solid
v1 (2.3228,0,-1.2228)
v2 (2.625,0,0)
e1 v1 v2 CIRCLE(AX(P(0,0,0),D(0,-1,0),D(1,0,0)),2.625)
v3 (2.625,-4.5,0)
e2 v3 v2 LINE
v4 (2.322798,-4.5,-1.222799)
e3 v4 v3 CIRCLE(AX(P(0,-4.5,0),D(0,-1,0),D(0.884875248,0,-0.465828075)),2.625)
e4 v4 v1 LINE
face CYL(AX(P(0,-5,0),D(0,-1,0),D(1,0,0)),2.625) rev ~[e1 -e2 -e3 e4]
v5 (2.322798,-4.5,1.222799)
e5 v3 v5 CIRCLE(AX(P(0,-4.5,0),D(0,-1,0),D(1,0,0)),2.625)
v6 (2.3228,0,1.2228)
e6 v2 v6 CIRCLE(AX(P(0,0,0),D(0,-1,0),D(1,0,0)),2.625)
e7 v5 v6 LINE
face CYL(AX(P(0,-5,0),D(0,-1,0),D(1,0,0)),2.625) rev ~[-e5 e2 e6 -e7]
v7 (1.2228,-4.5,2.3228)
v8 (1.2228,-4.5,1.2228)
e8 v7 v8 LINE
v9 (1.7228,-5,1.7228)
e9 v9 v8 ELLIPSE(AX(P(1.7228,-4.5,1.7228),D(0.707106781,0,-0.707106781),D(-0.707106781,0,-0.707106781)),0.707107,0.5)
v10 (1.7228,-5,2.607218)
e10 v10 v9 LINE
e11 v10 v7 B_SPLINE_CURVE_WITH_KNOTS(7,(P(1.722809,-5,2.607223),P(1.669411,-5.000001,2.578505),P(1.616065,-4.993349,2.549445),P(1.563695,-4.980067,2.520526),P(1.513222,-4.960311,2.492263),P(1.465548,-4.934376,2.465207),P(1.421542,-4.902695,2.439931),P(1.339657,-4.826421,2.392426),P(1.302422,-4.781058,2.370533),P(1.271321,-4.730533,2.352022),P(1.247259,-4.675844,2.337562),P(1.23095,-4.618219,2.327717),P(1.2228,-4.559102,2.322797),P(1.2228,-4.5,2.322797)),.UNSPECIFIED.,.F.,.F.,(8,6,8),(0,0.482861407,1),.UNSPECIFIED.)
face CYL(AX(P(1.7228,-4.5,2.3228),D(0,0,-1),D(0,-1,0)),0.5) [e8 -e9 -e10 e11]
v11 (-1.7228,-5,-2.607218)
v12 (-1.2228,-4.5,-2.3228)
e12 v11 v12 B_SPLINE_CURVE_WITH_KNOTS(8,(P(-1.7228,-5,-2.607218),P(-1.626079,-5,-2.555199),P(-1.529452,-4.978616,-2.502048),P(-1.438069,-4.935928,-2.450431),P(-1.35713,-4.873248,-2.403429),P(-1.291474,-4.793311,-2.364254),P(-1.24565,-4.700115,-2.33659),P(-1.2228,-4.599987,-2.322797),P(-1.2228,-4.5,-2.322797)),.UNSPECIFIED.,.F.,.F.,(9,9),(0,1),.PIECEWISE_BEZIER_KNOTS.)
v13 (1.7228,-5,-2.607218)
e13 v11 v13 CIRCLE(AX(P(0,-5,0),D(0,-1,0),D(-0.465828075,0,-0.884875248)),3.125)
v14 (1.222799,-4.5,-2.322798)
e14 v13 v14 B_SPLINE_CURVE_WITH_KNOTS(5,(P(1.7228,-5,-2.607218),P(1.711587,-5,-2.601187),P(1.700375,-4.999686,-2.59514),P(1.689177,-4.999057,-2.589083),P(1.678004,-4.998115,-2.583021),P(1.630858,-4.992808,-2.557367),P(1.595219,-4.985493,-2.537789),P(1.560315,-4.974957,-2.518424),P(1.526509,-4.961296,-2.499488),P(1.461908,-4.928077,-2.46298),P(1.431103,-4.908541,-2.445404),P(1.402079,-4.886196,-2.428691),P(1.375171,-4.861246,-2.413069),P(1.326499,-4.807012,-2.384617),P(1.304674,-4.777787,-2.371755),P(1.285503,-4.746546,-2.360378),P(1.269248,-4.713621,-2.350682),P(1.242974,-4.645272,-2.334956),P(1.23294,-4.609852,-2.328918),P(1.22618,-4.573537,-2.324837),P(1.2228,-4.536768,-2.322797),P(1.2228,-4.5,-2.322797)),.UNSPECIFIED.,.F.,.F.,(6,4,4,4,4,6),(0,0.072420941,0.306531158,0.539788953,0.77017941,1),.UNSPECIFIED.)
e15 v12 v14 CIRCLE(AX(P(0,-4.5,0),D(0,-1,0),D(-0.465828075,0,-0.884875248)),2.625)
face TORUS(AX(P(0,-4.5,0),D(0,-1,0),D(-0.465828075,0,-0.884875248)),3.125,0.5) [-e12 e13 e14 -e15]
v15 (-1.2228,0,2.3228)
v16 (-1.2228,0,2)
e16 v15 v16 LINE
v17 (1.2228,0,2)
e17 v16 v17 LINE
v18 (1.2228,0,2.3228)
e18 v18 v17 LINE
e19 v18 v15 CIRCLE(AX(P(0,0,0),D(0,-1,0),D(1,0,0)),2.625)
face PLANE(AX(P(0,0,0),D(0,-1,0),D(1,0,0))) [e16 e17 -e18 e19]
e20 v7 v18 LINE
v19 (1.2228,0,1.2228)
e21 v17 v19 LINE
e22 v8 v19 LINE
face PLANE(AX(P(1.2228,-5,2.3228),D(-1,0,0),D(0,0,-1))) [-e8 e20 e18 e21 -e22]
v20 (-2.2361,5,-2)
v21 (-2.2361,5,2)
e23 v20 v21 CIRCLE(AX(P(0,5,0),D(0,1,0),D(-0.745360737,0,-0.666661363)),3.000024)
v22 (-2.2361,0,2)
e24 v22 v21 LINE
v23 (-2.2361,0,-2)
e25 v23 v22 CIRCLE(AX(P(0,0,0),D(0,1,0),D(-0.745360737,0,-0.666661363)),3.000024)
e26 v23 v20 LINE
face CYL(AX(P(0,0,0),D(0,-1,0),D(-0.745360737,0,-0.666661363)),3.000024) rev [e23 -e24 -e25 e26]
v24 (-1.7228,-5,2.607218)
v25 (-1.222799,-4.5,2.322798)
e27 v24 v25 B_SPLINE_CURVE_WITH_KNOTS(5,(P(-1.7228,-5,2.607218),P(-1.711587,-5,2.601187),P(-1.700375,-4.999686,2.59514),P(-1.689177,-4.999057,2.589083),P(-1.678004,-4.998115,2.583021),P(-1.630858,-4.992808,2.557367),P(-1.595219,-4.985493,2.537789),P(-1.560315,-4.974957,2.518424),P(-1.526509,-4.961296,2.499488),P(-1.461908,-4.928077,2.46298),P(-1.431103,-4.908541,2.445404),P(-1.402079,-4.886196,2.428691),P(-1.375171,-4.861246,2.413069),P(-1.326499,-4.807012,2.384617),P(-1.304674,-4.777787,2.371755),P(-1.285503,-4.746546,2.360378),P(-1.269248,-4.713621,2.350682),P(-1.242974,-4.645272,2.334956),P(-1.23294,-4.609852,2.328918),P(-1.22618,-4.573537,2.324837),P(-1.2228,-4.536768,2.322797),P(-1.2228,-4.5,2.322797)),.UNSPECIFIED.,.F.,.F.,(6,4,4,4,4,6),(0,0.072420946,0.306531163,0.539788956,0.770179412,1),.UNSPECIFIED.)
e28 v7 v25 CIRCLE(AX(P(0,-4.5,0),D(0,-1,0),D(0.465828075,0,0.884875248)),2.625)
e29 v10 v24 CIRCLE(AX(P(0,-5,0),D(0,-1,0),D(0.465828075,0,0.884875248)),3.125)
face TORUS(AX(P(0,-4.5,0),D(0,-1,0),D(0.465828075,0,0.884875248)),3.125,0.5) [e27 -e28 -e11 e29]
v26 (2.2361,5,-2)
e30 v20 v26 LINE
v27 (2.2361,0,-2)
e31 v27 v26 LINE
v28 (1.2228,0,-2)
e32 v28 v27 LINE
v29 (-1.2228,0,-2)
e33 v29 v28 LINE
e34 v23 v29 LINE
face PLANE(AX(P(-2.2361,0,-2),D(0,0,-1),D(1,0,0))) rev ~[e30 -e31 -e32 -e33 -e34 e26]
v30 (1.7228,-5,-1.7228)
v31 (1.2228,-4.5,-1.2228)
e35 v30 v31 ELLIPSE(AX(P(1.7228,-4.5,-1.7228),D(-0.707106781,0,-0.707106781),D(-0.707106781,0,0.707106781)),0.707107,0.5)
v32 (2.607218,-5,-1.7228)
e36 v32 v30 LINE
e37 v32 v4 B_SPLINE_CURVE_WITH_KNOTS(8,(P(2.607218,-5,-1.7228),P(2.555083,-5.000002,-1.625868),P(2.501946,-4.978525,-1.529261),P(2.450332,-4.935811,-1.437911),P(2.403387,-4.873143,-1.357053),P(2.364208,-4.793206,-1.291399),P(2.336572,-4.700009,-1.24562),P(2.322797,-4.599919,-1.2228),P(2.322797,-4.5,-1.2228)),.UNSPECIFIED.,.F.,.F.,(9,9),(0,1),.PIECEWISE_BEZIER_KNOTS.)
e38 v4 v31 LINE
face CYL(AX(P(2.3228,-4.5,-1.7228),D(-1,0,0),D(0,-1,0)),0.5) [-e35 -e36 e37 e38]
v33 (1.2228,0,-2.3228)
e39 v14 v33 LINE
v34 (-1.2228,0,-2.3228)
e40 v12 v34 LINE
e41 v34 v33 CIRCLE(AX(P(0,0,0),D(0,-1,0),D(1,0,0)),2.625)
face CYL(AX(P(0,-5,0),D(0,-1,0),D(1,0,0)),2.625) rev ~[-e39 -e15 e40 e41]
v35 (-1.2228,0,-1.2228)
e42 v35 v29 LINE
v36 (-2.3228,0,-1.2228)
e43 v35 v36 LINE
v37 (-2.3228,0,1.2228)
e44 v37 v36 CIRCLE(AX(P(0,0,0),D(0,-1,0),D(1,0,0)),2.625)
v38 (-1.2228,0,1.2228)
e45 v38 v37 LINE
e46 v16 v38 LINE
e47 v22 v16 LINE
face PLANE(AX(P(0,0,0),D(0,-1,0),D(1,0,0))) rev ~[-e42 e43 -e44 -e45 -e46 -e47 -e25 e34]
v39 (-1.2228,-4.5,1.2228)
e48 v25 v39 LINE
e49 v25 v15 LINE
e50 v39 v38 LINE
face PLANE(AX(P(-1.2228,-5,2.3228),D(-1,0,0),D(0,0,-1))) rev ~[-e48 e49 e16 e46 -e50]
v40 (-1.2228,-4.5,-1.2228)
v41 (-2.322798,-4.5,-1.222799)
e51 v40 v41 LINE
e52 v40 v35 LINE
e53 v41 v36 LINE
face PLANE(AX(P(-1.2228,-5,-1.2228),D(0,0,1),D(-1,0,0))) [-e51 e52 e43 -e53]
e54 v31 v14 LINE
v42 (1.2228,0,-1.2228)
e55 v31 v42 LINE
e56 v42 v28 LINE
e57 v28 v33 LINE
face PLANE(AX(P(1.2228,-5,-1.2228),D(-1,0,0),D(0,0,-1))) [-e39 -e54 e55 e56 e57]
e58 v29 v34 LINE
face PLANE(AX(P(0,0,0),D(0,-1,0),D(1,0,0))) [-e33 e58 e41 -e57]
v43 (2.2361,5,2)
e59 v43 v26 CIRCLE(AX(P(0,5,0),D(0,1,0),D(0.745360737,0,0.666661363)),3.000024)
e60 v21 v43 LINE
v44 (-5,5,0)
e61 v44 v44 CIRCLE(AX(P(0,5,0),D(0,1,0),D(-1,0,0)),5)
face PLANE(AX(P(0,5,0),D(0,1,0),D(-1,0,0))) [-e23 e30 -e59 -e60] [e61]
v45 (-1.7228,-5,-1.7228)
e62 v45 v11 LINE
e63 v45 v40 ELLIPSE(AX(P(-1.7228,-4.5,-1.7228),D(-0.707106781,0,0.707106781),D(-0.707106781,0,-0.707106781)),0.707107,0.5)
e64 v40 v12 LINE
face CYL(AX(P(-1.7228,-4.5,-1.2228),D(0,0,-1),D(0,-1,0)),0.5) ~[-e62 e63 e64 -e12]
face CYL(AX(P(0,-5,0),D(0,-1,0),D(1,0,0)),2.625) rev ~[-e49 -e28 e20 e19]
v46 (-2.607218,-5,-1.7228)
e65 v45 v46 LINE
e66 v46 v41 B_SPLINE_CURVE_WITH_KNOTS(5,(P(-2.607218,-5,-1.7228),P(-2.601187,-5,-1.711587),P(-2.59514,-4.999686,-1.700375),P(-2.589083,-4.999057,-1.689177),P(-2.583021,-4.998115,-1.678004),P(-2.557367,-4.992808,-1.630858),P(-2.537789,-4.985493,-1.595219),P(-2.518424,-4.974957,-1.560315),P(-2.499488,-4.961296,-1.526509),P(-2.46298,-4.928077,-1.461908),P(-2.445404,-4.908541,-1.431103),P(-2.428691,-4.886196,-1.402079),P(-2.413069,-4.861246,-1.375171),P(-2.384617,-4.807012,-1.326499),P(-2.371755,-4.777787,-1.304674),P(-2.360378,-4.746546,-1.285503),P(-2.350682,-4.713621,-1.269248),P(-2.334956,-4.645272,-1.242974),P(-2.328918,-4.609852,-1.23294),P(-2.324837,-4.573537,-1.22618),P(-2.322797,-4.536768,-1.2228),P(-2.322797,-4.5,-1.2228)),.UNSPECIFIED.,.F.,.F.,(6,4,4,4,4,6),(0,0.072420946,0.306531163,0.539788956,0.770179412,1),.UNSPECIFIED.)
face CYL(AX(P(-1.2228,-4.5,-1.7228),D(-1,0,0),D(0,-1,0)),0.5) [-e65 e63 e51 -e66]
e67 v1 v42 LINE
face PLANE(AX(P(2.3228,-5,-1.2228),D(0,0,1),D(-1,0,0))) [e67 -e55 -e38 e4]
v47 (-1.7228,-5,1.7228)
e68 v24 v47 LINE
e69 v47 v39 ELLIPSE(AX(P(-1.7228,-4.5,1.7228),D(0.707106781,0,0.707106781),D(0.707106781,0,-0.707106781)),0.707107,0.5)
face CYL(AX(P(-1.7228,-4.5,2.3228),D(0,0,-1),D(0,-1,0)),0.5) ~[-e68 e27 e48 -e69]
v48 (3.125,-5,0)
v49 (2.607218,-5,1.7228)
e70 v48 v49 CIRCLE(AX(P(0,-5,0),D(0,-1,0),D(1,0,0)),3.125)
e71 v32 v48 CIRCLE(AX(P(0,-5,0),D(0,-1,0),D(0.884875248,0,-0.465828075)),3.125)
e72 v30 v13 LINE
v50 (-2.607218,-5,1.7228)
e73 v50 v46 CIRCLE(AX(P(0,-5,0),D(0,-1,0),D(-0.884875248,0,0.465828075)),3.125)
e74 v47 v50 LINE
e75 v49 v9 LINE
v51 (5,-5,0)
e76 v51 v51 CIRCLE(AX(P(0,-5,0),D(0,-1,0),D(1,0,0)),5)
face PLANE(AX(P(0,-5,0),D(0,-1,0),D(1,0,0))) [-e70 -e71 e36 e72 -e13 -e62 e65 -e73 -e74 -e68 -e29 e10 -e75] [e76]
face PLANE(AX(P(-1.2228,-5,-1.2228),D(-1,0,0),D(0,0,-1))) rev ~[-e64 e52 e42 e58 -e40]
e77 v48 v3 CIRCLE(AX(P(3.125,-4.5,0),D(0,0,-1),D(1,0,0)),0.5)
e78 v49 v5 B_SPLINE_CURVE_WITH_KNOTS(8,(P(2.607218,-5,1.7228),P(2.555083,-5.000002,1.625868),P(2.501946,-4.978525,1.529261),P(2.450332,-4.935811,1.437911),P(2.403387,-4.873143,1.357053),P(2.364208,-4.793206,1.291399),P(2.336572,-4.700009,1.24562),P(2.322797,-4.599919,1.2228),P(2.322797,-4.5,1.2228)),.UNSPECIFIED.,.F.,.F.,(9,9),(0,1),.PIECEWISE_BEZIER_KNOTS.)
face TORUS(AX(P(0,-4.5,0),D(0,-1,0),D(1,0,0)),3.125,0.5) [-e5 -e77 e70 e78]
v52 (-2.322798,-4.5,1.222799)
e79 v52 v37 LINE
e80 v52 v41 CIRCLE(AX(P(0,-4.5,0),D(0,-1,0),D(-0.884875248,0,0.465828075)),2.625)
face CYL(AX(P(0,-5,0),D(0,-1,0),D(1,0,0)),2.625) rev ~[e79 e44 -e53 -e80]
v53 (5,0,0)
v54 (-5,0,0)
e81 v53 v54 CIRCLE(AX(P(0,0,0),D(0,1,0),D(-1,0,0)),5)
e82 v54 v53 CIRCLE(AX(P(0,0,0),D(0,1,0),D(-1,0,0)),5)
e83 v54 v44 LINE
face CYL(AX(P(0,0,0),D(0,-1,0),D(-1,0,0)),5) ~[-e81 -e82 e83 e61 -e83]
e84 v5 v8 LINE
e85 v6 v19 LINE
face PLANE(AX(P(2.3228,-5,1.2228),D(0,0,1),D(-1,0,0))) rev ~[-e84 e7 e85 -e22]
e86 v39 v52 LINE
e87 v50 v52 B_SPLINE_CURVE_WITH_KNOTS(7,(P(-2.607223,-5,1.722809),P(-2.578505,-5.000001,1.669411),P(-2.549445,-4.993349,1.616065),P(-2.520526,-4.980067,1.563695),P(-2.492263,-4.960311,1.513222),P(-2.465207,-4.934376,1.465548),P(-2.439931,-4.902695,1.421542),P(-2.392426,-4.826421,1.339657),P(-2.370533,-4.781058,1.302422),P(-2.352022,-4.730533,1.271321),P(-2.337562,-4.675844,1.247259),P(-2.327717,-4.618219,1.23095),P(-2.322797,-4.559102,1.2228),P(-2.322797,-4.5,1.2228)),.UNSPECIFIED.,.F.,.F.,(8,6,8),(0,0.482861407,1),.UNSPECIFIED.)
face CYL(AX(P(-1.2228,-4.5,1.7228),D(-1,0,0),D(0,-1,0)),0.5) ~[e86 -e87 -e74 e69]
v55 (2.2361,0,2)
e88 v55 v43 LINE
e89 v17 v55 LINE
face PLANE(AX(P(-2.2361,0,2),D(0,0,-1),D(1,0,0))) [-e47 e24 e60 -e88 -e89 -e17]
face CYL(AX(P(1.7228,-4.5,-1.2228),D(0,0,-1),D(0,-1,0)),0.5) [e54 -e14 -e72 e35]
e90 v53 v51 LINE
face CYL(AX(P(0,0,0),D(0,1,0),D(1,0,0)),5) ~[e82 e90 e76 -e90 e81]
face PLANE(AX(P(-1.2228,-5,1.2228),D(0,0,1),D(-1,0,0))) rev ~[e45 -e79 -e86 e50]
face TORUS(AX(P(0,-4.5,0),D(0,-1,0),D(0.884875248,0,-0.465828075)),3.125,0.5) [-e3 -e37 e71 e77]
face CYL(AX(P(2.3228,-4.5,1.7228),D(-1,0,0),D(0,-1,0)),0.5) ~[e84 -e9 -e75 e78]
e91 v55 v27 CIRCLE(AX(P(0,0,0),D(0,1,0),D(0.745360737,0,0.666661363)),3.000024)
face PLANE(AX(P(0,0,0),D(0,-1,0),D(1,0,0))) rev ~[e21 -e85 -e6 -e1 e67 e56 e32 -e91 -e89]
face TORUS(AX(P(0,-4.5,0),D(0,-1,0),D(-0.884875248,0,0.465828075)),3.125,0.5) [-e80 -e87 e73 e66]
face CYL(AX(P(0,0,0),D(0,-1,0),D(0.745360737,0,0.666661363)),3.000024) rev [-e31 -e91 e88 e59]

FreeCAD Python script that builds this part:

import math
import FreeCAD as App
import Part
import Sketcher
from FreeCAD import Vector


def edges_at(feature, points):
    """Names of the edges that pass closest to the given points."""
    edges = feature.Shape.Edges
    near = lambda p: min(range(len(edges)), key=lambda i: edges[i].distToShape(Part.Vertex(*p))[0])
    return sorted({f"Edge{near(p) + 1}" for p in points})

doc = App.newDocument("Part")
body = doc.addObject("PartDesign::Body", "Body")

# Sketch on XZ plane
sketch1 = body.newObject("Sketcher::SketchObject", "Sketch")
sketch1.AttachmentSupport = (doc.getObject("XZ_Plane"), [""])
sketch1.MapMode = "FlatFace"
sketch1.addGeometry([
    Part.Circle(Vector(0, 0, 0), Vector(0, 0, 1), 5),  # 0
    Part.ArcOfCircle(Part.Circle(Vector(0, 0, 0), Vector(0, 0, 1), 3.000024), math.radians(138.190093), math.radians(221.809907)),  # 1
    Part.LineSegment(Vector(-2.2361, -2, 0), Vector(2.2361, -2, 0)),  # 2
    Part.ArcOfCircle(Part.Circle(Vector(0, 0, 0), Vector(0, 0, 1), 3.000024), math.radians(-41.809907), math.radians(41.809907)),  # 3
    Part.LineSegment(Vector(2.2361, 2, 0), Vector(-2.2361, 2, 0)),  # 4
], False)
sketch1.addConstraint([
    Sketcher.Constraint("Coincident", 1, 2, 2, 1),
    Sketcher.Constraint("Coincident", 2, 2, 3, 1),
    Sketcher.Constraint("Coincident", 3, 2, 4, 1),
    Sketcher.Constraint("Coincident", 4, 2, 1, 1),
    Sketcher.Constraint("Horizontal", 2),
    Sketcher.Constraint("Horizontal", 4),
    Sketcher.Constraint("Coincident", 0, 3, -1, 1),
    Sketcher.Constraint("Coincident", 1, 3, -1, 1),
    Sketcher.Constraint("Coincident", 3, 3, -1, 1),
    Sketcher.Constraint("Equal", 1, 3),
    Sketcher.Constraint("Vertical", 2, 2, 3, 2),
    Sketcher.Constraint("Diameter", 0, 10.0),
    Sketcher.Constraint("Radius", 1, 3.0),
    Sketcher.Constraint("DistanceY", 1, 2, -1, 1, 2.0),
])
pad1 = body.newObject("PartDesign::Pad", "Pad")
pad1.Profile = sketch1
pad1.Length = 5
pad1.Reversed = True

# Sketch on XZ plane
sketch2 = body.newObject("Sketcher::SketchObject", "Sketch001")
sketch2.AttachmentSupport = (doc.getObject("XZ_Plane"), [""])
sketch2.MapMode = "FlatFace"
sketch2.addGeometry(Part.Circle(Vector(0, 0, 0), Vector(0, 0, 1), 5), False)
sketch2.addConstraint([
    Sketcher.Constraint("Coincident", 0, 3, -1, 1),
    Sketcher.Constraint("Diameter", 0, 10.0),
])
pad2 = body.newObject("PartDesign::Pad", "Pad001")
pad2.Profile = sketch2
pad2.Length = 5

# Sketch on XZ plane
sketch3 = body.newObject("Sketcher::SketchObject", "Sketch002")
sketch3.AttachmentSupport = (doc.getObject("XZ_Plane"), [""])
sketch3.MapMode = "FlatFace"
sketch3.AttachmentOffset = App.Placement(Vector(0, 0, 5), App.Rotation())
sketch3.addGeometry([
    Part.ArcOfCircle(Part.Circle(Vector(0, 0, 0), Vector(0, 0, 1), 2.625), math.radians(-27.763827), math.radians(27.763827)),  # 0
    Part.LineSegment(Vector(2.3228, 1.2228, 0), Vector(1.2228, 1.2228, 0)),  # 1
    Part.LineSegment(Vector(1.2228, 1.2228, 0), Vector(1.2228, 2.3228, 0)),  # 2
    Part.ArcOfCircle(Part.Circle(Vector(0, 0, 0), Vector(0, 0, 1), 2.625), math.radians(62.236173), math.radians(117.763827)),  # 3
    Part.LineSegment(Vector(-1.2228, 2.3228, 0), Vector(-1.2228, 1.2228, 0)),  # 4
    Part.LineSegment(Vector(-1.2228, 1.2228, 0), Vector(-2.3228, 1.2228, 0)),  # 5
    Part.ArcOfCircle(Part.Circle(Vector(0, 0, 0), Vector(0, 0, 1), 2.625), math.radians(152.236173), math.radians(207.763827)),  # 6
    Part.LineSegment(Vector(-2.3228, -1.2228, 0), Vector(-1.2228, -1.2228, 0)),  # 7
    Part.LineSegment(Vector(-1.2228, -1.2228, 0), Vector(-1.2228, -2.3228, 0)),  # 8
    Part.ArcOfCircle(Part.Circle(Vector(0, 0, 0), Vector(0, 0, 1), 2.625), math.radians(-117.763827), math.radians(-62.236173)),  # 9
    Part.LineSegment(Vector(1.2228, -2.3228, 0), Vector(1.2228, -1.2228, 0)),  # 10
    Part.LineSegment(Vector(1.2228, -1.2228, 0), Vector(2.3228, -1.2228, 0)),  # 11
], False)
sketch3.addConstraint([
    Sketcher.Constraint("Coincident", 0, 2, 1, 1),
    Sketcher.Constraint("Coincident", 1, 2, 2, 1),
    Sketcher.Constraint("Coincident", 2, 2, 3, 1),
    Sketcher.Constraint("Coincident", 3, 2, 4, 1),
    Sketcher.Constraint("Coincident", 4, 2, 5, 1),
    Sketcher.Constraint("Coincident", 5, 2, 6, 1),
    Sketcher.Constraint("Coincident", 6, 2, 7, 1),
    Sketcher.Constraint("Coincident", 7, 2, 8, 1),
    Sketcher.Constraint("Coincident", 8, 2, 9, 1),
    Sketcher.Constraint("Coincident", 9, 2, 10, 1),
    Sketcher.Constraint("Coincident", 10, 2, 11, 1),
    Sketcher.Constraint("Coincident", 11, 2, 0, 1),
    Sketcher.Constraint("Horizontal", 1),
    Sketcher.Constraint("Vertical", 2),
    Sketcher.Constraint("Vertical", 4),
    Sketcher.Constraint("Horizontal", 5),
    Sketcher.Constraint("Horizontal", 7),
    Sketcher.Constraint("Vertical", 8),
    Sketcher.Constraint("Vertical", 10),
    Sketcher.Constraint("Horizontal", 11),
    Sketcher.Constraint("Coincident", 0, 3, -1, 1),
    Sketcher.Constraint("Coincident", 3, 3, -1, 1),
    Sketcher.Constraint("Coincident", 6, 3, -1, 1),
    Sketcher.Constraint("Coincident", 9, 3, -1, 1),
    Sketcher.Constraint("Equal", 0, 3),
    Sketcher.Constraint("Equal", 3, 6),
    Sketcher.Constraint("Equal", 6, 9),
    Sketcher.Constraint("Symmetric", 1, 2, 7, 2, -1, 1),
    Sketcher.Constraint("Symmetric", 4, 2, 10, 2, -1, 1),
    Sketcher.Constraint("Symmetric", 1, 2, 4, 2, -2),
    Sketcher.Constraint("Equal", 11, 2),
    Sketcher.Constraint("DistanceX", 1, 2, 1, 1, 1.1),
    Sketcher.Constraint("Radius", 0, 2.625),
])
pocket1 = body.newObject("PartDesign::Pocket", "Pocket")
pocket1.Profile = sketch3
pocket1.Length = 5
doc.recompute()

fillet = body.newObject("PartDesign::Fillet", "Fillet")
fillet.Base = (pocket1, edges_at(pocket1, [
    (2.625, -5, 0),
    (1.773, -5, 1.223),
    (1.223, -5, 1.773),
    (0, -5, 2.625),
    (-1.223, -5, 1.773),
    (-2.625, -5, 0),
    (-1.773, -5, 1.223),
    (-1.773, -5, -1.223),
    (-1.223, -5, -1.773),
    (0, -5, -2.625),
    (1.773, -5, -1.223),
    (1.223, -5, -1.773),
]))
fillet.Radius = 0.5

doc.recompute()
